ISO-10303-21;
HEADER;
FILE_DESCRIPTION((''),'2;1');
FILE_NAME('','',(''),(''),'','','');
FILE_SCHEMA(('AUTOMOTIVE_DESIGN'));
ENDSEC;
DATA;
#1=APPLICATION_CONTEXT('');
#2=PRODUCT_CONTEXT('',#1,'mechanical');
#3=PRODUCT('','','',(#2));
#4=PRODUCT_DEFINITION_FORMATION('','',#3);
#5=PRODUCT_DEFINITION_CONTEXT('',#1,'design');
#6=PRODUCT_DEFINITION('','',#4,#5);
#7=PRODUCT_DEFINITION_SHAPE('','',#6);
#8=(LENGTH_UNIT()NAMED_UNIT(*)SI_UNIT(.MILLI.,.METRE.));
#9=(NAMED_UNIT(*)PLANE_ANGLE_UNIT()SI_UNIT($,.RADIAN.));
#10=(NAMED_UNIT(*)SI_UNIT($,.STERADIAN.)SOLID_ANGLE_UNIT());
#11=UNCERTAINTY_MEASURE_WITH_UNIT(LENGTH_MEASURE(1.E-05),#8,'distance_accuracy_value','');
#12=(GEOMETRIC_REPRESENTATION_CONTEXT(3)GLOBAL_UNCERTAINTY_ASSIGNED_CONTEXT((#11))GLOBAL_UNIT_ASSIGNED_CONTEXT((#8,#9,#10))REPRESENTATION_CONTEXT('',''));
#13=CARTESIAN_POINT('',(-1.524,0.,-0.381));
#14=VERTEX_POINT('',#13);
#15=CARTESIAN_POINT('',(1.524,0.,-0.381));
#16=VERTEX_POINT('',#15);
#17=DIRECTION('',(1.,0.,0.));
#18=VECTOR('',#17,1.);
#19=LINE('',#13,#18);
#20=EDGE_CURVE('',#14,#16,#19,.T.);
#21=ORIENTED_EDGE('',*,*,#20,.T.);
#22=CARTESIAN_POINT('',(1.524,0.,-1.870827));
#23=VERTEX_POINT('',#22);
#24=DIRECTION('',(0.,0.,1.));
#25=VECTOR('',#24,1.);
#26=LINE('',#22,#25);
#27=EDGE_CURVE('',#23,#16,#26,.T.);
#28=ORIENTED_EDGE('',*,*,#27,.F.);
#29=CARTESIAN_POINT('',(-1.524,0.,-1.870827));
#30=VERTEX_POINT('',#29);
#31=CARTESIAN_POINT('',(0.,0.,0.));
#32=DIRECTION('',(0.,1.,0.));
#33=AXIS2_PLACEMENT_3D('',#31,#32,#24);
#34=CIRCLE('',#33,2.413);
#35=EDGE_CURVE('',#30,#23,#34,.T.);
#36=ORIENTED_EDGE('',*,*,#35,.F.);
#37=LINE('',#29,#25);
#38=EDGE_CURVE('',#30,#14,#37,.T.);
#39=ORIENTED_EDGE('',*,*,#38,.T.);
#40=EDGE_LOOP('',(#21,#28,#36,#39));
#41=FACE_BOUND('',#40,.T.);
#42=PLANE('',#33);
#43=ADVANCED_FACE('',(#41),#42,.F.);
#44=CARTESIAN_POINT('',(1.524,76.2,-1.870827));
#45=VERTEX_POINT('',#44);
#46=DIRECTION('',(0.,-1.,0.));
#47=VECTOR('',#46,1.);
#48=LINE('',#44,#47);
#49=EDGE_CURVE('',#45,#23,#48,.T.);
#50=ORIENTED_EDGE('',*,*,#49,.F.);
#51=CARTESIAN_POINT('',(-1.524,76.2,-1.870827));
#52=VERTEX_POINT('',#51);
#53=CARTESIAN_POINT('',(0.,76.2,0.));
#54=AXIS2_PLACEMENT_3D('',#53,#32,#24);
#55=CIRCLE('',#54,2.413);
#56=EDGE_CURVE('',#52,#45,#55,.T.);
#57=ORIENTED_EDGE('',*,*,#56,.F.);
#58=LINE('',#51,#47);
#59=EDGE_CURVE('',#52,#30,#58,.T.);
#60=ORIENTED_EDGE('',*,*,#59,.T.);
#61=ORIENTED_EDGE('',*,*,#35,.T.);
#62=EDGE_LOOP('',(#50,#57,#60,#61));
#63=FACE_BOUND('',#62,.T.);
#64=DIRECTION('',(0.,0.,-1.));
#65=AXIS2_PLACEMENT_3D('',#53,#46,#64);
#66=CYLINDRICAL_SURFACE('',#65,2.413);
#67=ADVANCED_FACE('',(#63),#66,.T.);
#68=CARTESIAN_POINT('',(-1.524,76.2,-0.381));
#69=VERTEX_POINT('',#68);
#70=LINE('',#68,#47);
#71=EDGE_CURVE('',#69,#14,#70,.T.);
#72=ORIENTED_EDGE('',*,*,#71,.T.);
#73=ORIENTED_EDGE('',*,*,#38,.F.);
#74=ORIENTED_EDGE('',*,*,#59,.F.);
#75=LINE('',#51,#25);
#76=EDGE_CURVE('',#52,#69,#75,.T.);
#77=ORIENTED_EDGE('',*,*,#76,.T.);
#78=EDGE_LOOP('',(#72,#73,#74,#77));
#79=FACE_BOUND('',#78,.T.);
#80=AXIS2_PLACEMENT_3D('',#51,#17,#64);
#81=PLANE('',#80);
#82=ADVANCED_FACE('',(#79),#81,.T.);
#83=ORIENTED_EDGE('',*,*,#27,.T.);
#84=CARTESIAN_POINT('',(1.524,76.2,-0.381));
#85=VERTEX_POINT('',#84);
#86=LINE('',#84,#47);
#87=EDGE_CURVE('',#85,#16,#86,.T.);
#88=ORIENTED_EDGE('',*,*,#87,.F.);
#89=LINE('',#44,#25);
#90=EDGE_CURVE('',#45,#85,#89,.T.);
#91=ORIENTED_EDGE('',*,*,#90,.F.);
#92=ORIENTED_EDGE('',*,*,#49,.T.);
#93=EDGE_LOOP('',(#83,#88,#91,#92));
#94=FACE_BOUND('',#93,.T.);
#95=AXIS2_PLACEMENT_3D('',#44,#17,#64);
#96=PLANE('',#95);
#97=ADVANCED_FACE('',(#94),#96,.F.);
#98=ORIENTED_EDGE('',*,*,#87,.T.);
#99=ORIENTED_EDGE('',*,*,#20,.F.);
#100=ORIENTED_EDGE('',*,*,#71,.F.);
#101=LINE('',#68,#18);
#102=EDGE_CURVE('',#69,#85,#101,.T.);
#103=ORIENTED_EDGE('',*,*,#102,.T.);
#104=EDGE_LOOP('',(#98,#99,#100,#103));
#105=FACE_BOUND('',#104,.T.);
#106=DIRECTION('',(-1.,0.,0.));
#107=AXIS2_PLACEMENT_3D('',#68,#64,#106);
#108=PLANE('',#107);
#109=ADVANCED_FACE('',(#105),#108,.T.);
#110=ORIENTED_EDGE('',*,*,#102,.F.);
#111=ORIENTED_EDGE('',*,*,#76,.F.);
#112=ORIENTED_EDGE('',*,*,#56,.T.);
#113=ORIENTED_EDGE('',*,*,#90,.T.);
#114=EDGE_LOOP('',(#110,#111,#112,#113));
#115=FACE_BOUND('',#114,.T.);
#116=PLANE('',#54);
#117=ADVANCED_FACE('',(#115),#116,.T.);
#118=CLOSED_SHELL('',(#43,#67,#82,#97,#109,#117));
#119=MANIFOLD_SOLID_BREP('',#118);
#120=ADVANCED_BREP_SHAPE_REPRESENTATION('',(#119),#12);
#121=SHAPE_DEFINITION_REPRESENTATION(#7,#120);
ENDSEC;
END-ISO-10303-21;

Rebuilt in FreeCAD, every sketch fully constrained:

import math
import FreeCAD as App
import Part
import Sketcher

V = App.Vector
Q = App.Units.Quantity

doc = App.newDocument("Part")
body = doc.addObject("PartDesign::Body", "Body")

# Sketch on XZ plane
sketch1 = body.newObject("Sketcher::SketchObject", "Sketch")
sketch1.AttachmentSupport = (doc.getObject("XZ_Plane"), [""])
sketch1.MapMode = "FlatFace"
sketch1.addGeometry(Part.LineSegment(V(-1.5, -0.4, 0), V(-1.5, -1.9, 0)), False)
sketch1.addGeometry(Part.ArcOfCircle(Part.Circle(V(0, 0, 0), V(0, 0, 1), 2.4), math.radians(-51), math.radians(231)), False)
sketch1.addGeometry(Part.LineSegment(V(1.5, -1.9, 0), V(1.5, -0.4, 0)), False)
sketch1.addGeometry(Part.LineSegment(V(1.5, -0.4, 0), V(-1.5, -0.4, 0)), False)
sketch1.addConstraint(Sketcher.Constraint("Coincident", 0, 2, 1, 2))
sketch1.addConstraint(Sketcher.Constraint("Coincident", 1, 1, 2, 1))
sketch1.addConstraint(Sketcher.Constraint("Coincident", 2, 2, 3, 1))
sketch1.addConstraint(Sketcher.Constraint("Coincident", 3, 2, 0, 1))
sketch1.addConstraint(Sketcher.Constraint("Vertical", 0))
sketch1.addConstraint(Sketcher.Constraint("Vertical", 2))
sketch1.addConstraint(Sketcher.Constraint("Horizontal", 3))
sketch1.addConstraint(Sketcher.Constraint("Coincident", 1, 3, -1, 1))
sketch1.addConstraint(Sketcher.Constraint("Horizontal", 0, 2, 1, 1))
sketch1.addConstraint(Sketcher.Constraint("Radius", 1, Q("0.095 in")))
sketch1.addConstraint(Sketcher.Constraint("DistanceX", 3, 2, 3, 1, Q("0.12 in")))
sketch1.addConstraint(Sketcher.Constraint("DistanceY", 2, 2, -1, 1, Q("0.015 in")))
pad1 = body.newObject("PartDesign::Pad", "Pad")
pad1.Profile = sketch1
pad1.Length = Q("3 in")
pad1.Reversed = True

doc.recompute()
